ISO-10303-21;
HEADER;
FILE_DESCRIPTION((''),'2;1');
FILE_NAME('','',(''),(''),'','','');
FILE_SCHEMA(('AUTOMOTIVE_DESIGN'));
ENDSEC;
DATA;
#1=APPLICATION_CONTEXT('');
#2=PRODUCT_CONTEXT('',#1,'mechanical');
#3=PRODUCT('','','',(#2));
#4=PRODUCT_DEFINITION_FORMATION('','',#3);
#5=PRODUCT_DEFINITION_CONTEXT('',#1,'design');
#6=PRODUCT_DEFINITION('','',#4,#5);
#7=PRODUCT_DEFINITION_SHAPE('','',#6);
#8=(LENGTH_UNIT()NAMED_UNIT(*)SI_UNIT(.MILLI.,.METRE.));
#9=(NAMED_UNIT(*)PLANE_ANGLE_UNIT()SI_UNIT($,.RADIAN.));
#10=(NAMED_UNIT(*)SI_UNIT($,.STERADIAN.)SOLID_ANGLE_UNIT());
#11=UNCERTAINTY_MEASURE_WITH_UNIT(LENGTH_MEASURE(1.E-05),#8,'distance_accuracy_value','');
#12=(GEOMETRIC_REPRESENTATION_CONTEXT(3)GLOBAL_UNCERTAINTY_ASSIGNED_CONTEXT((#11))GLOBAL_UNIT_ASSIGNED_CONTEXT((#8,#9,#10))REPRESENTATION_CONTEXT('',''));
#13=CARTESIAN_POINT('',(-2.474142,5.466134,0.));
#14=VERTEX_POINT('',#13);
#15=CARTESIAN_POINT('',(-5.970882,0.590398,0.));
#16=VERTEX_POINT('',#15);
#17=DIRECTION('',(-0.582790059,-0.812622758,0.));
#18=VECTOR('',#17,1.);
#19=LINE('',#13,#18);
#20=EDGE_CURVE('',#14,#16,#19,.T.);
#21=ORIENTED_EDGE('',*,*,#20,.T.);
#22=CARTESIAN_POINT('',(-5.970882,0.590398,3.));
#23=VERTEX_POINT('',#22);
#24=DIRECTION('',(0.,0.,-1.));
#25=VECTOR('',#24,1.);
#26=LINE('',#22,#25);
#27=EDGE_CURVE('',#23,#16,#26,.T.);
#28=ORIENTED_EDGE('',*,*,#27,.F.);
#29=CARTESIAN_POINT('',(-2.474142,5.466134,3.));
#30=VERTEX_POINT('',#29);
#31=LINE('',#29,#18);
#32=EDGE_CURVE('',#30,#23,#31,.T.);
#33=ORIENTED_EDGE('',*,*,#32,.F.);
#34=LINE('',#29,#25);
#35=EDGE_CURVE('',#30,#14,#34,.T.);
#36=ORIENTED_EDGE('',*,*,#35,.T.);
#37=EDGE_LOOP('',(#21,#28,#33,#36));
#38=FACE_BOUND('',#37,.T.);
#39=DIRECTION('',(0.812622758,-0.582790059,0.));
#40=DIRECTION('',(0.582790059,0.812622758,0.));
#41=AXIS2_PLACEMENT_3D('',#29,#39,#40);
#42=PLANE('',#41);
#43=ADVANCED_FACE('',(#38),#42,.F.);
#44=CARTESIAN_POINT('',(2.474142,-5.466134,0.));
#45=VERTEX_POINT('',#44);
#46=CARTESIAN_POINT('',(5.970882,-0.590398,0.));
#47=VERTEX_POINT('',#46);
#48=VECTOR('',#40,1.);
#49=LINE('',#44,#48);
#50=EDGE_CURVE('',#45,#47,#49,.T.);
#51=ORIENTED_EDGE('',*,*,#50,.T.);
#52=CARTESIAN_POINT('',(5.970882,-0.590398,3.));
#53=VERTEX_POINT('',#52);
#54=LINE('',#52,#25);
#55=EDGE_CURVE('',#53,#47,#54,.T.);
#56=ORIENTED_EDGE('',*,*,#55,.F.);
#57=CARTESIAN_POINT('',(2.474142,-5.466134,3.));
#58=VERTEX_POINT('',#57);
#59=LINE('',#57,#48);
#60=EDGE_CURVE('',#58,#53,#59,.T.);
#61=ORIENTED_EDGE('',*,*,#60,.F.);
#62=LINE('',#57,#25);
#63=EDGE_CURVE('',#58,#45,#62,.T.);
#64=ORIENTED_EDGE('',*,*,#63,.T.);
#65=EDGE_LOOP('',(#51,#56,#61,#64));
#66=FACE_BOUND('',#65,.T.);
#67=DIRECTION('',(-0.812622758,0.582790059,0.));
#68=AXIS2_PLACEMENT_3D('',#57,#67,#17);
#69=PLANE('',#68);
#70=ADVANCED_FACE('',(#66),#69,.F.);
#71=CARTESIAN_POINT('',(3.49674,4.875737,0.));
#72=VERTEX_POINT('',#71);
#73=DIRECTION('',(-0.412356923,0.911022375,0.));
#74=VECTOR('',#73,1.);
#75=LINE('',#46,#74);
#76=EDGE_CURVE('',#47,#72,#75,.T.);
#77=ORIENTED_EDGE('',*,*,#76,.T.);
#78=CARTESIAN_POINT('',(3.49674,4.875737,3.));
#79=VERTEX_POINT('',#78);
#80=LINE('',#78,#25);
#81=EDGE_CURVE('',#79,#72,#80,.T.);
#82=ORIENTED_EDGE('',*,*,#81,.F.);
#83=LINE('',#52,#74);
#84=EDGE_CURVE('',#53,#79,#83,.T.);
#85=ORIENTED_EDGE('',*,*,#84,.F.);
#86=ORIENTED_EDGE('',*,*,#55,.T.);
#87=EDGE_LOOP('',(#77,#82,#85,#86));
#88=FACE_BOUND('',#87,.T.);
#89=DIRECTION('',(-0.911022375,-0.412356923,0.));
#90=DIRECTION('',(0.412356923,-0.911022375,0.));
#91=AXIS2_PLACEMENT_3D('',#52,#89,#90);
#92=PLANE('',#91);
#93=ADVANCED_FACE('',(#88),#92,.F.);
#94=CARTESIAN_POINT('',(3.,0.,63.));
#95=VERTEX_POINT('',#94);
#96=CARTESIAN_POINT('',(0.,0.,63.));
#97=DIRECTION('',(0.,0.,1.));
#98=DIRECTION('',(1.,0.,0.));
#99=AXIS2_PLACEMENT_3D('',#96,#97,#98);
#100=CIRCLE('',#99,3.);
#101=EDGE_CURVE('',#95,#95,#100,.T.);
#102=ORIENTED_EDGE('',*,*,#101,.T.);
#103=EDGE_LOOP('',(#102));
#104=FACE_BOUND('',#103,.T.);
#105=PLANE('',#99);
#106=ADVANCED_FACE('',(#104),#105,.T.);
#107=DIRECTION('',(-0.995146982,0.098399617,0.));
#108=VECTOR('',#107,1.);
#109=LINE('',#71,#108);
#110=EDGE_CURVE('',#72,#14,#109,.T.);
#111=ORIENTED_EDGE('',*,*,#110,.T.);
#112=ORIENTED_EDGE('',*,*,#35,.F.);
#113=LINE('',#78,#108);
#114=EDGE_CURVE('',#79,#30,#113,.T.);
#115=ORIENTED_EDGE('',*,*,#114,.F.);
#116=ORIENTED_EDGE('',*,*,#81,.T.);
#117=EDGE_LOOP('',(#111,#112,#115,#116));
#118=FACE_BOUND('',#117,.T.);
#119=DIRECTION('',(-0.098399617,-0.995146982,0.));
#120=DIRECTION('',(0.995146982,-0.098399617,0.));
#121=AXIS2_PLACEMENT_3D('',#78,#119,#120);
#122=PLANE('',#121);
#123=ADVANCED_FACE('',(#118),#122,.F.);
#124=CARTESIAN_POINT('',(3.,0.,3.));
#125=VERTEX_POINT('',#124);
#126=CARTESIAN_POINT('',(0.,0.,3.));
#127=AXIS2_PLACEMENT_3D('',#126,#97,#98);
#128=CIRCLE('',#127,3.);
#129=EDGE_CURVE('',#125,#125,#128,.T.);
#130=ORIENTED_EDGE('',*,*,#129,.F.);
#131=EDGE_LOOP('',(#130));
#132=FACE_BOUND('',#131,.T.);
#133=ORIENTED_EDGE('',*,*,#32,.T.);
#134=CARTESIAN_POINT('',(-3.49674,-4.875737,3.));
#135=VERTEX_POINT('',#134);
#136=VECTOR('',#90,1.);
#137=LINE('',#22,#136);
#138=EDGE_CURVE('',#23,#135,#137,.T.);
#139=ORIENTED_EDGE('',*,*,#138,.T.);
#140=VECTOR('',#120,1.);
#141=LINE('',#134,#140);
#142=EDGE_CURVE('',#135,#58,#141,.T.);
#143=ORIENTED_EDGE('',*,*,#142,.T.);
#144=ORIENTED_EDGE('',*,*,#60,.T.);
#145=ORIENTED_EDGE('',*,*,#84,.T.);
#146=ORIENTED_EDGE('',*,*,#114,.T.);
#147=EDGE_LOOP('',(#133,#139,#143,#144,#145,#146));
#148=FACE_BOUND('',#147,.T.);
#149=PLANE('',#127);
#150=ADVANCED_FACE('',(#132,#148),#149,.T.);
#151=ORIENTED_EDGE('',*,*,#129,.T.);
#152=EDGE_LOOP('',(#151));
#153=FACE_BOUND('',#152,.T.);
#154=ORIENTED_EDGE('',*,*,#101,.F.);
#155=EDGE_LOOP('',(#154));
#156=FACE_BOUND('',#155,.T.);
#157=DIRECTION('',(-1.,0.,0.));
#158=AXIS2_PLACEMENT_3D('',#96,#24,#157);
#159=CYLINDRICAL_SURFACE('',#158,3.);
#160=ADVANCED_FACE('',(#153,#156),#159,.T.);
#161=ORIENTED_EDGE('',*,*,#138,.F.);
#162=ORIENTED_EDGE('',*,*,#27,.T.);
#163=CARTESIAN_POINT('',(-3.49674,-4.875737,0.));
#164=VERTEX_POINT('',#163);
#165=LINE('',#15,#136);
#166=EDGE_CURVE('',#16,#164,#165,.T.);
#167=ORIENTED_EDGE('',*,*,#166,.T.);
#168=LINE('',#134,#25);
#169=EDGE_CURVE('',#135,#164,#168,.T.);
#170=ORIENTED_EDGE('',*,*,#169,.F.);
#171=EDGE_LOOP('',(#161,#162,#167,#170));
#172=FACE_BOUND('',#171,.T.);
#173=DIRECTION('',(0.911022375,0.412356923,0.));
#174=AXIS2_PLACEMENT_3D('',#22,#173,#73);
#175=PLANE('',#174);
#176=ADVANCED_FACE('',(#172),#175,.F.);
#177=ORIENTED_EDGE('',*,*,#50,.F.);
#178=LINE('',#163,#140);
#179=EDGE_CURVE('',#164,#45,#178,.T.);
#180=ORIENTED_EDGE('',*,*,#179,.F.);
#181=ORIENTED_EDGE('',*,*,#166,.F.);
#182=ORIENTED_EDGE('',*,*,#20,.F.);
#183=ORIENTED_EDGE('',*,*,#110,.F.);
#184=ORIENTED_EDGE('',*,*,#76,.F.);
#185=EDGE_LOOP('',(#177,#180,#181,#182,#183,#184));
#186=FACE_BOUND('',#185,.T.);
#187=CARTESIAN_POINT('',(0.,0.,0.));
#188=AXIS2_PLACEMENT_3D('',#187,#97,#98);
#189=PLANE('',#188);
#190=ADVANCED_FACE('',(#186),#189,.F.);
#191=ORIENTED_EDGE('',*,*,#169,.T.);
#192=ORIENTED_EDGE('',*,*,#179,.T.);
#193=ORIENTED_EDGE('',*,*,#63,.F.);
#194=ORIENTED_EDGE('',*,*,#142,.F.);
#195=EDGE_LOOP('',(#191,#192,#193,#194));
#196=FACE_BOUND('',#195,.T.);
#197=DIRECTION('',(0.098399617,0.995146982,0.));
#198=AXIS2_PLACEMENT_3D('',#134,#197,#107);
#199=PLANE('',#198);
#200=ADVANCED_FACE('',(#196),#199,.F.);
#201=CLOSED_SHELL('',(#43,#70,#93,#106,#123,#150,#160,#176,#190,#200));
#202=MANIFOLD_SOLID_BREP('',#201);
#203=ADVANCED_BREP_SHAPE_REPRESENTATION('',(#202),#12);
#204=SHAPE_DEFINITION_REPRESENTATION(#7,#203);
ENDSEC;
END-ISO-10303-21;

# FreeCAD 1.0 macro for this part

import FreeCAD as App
import Part
import Sketcher
from FreeCAD import Vector
Q = App.Units.Quantity

doc = App.newDocument("Part")
body = doc.addObject("PartDesign::Body", "Body")

sketch1 = body.newObject("Sketcher::SketchObject", "Sketch")
sketch1.AttachmentSupport = (doc.getObject("XY_Plane"), [""])
sketch1.MapMode = "FlatFace"
sketch1.addGeometry(Part.LineSegment(Vector(3, 5, 0), Vector(-2, 5, 0)), False)
sketch1.addGeometry(Part.LineSegment(Vector(-2, 5, 0), Vector(-6, 1, 0)), False)
sketch1.addGeometry(Part.LineSegment(Vector(-6, 1, 0), Vector(-3, -5, 0)), False)
sketch1.addGeometry(Part.LineSegment(Vector(-3, -5, 0), Vector(2, -5, 0)), False)
sketch1.addGeometry(Part.LineSegment(Vector(2, -5, 0), Vector(6, -1, 0)), False)
sketch1.addGeometry(Part.LineSegment(Vector(6, -1, 0), Vector(3, 5, 0)), False)
sketch1.addConstraint(Sketcher.Constraint("Coincident", 0, 2, 1, 1))
sketch1.addConstraint(Sketcher.Constraint("Coincident", 1, 2, 2, 1))
sketch1.addConstraint(Sketcher.Constraint("Coincident", 2, 2, 3, 1))
sketch1.addConstraint(Sketcher.Constraint("Coincident", 3, 2, 4, 1))
sketch1.addConstraint(Sketcher.Constraint("Coincident", 4, 2, 5, 1))
sketch1.addConstraint(Sketcher.Constraint("Coincident", 5, 2, 0, 1))
sketch1.addConstraint(Sketcher.Constraint("Symmetric", 0, 2, 3, 2, -1, 1))
sketch1.addConstraint(Sketcher.Constraint("Symmetric", 1, 2, 4, 2, -1, 1))
sketch1.addConstraint(Sketcher.Constraint("Symmetric", 2, 2, 5, 2, -1, 1))
sketch1.addConstraint(Sketcher.Constraint("Equal", 0, 1))
sketch1.addConstraint(Sketcher.Constraint("Equal", 1, 2))
sketch1.addConstraint(Sketcher.Constraint("Distance", 0, Q("6 mm")))
sketch1.addConstraint(Sketcher.Constraint("DistanceX", 2, 2, 0, 2, Q("1.022599 mm")))
sketch1.addConstraint(Sketcher.Constraint("DistanceX", 0, 2, -1, 1, Q("2.474142 mm")))
sketch1.addConstraint(Sketcher.Constraint("DistanceX", 1, 2, -1, 1, Q("5.970882 mm")))
pad1 = body.newObject("PartDesign::Pad", "Pad")
pad1.Profile = sketch1
pad1.Length = 3

sketch2 = body.newObject("Sketcher::SketchObject", "Sketch001")
sketch2.AttachmentSupport = (doc.getObject("XY_Plane"), [""])
sketch2.MapMode = "FlatFace"
sketch2.AttachmentOffset = App.Placement(Vector(0, 0, 3), App.Rotation())
sketch2.addGeometry(Part.Circle(Vector(0, 0, 0), Vector(0, 0, 1), 3), False)
sketch2.addConstraint(Sketcher.Constraint("Coincident", 0, 3, -1, 1))
sketch2.addConstraint(Sketcher.Constraint("Diameter", 0, Q("6 mm")))
pad2 = body.newObject("PartDesign::Pad", "Pad001")
pad2.Profile = sketch2
pad2.Length = 60

doc.recompute()
